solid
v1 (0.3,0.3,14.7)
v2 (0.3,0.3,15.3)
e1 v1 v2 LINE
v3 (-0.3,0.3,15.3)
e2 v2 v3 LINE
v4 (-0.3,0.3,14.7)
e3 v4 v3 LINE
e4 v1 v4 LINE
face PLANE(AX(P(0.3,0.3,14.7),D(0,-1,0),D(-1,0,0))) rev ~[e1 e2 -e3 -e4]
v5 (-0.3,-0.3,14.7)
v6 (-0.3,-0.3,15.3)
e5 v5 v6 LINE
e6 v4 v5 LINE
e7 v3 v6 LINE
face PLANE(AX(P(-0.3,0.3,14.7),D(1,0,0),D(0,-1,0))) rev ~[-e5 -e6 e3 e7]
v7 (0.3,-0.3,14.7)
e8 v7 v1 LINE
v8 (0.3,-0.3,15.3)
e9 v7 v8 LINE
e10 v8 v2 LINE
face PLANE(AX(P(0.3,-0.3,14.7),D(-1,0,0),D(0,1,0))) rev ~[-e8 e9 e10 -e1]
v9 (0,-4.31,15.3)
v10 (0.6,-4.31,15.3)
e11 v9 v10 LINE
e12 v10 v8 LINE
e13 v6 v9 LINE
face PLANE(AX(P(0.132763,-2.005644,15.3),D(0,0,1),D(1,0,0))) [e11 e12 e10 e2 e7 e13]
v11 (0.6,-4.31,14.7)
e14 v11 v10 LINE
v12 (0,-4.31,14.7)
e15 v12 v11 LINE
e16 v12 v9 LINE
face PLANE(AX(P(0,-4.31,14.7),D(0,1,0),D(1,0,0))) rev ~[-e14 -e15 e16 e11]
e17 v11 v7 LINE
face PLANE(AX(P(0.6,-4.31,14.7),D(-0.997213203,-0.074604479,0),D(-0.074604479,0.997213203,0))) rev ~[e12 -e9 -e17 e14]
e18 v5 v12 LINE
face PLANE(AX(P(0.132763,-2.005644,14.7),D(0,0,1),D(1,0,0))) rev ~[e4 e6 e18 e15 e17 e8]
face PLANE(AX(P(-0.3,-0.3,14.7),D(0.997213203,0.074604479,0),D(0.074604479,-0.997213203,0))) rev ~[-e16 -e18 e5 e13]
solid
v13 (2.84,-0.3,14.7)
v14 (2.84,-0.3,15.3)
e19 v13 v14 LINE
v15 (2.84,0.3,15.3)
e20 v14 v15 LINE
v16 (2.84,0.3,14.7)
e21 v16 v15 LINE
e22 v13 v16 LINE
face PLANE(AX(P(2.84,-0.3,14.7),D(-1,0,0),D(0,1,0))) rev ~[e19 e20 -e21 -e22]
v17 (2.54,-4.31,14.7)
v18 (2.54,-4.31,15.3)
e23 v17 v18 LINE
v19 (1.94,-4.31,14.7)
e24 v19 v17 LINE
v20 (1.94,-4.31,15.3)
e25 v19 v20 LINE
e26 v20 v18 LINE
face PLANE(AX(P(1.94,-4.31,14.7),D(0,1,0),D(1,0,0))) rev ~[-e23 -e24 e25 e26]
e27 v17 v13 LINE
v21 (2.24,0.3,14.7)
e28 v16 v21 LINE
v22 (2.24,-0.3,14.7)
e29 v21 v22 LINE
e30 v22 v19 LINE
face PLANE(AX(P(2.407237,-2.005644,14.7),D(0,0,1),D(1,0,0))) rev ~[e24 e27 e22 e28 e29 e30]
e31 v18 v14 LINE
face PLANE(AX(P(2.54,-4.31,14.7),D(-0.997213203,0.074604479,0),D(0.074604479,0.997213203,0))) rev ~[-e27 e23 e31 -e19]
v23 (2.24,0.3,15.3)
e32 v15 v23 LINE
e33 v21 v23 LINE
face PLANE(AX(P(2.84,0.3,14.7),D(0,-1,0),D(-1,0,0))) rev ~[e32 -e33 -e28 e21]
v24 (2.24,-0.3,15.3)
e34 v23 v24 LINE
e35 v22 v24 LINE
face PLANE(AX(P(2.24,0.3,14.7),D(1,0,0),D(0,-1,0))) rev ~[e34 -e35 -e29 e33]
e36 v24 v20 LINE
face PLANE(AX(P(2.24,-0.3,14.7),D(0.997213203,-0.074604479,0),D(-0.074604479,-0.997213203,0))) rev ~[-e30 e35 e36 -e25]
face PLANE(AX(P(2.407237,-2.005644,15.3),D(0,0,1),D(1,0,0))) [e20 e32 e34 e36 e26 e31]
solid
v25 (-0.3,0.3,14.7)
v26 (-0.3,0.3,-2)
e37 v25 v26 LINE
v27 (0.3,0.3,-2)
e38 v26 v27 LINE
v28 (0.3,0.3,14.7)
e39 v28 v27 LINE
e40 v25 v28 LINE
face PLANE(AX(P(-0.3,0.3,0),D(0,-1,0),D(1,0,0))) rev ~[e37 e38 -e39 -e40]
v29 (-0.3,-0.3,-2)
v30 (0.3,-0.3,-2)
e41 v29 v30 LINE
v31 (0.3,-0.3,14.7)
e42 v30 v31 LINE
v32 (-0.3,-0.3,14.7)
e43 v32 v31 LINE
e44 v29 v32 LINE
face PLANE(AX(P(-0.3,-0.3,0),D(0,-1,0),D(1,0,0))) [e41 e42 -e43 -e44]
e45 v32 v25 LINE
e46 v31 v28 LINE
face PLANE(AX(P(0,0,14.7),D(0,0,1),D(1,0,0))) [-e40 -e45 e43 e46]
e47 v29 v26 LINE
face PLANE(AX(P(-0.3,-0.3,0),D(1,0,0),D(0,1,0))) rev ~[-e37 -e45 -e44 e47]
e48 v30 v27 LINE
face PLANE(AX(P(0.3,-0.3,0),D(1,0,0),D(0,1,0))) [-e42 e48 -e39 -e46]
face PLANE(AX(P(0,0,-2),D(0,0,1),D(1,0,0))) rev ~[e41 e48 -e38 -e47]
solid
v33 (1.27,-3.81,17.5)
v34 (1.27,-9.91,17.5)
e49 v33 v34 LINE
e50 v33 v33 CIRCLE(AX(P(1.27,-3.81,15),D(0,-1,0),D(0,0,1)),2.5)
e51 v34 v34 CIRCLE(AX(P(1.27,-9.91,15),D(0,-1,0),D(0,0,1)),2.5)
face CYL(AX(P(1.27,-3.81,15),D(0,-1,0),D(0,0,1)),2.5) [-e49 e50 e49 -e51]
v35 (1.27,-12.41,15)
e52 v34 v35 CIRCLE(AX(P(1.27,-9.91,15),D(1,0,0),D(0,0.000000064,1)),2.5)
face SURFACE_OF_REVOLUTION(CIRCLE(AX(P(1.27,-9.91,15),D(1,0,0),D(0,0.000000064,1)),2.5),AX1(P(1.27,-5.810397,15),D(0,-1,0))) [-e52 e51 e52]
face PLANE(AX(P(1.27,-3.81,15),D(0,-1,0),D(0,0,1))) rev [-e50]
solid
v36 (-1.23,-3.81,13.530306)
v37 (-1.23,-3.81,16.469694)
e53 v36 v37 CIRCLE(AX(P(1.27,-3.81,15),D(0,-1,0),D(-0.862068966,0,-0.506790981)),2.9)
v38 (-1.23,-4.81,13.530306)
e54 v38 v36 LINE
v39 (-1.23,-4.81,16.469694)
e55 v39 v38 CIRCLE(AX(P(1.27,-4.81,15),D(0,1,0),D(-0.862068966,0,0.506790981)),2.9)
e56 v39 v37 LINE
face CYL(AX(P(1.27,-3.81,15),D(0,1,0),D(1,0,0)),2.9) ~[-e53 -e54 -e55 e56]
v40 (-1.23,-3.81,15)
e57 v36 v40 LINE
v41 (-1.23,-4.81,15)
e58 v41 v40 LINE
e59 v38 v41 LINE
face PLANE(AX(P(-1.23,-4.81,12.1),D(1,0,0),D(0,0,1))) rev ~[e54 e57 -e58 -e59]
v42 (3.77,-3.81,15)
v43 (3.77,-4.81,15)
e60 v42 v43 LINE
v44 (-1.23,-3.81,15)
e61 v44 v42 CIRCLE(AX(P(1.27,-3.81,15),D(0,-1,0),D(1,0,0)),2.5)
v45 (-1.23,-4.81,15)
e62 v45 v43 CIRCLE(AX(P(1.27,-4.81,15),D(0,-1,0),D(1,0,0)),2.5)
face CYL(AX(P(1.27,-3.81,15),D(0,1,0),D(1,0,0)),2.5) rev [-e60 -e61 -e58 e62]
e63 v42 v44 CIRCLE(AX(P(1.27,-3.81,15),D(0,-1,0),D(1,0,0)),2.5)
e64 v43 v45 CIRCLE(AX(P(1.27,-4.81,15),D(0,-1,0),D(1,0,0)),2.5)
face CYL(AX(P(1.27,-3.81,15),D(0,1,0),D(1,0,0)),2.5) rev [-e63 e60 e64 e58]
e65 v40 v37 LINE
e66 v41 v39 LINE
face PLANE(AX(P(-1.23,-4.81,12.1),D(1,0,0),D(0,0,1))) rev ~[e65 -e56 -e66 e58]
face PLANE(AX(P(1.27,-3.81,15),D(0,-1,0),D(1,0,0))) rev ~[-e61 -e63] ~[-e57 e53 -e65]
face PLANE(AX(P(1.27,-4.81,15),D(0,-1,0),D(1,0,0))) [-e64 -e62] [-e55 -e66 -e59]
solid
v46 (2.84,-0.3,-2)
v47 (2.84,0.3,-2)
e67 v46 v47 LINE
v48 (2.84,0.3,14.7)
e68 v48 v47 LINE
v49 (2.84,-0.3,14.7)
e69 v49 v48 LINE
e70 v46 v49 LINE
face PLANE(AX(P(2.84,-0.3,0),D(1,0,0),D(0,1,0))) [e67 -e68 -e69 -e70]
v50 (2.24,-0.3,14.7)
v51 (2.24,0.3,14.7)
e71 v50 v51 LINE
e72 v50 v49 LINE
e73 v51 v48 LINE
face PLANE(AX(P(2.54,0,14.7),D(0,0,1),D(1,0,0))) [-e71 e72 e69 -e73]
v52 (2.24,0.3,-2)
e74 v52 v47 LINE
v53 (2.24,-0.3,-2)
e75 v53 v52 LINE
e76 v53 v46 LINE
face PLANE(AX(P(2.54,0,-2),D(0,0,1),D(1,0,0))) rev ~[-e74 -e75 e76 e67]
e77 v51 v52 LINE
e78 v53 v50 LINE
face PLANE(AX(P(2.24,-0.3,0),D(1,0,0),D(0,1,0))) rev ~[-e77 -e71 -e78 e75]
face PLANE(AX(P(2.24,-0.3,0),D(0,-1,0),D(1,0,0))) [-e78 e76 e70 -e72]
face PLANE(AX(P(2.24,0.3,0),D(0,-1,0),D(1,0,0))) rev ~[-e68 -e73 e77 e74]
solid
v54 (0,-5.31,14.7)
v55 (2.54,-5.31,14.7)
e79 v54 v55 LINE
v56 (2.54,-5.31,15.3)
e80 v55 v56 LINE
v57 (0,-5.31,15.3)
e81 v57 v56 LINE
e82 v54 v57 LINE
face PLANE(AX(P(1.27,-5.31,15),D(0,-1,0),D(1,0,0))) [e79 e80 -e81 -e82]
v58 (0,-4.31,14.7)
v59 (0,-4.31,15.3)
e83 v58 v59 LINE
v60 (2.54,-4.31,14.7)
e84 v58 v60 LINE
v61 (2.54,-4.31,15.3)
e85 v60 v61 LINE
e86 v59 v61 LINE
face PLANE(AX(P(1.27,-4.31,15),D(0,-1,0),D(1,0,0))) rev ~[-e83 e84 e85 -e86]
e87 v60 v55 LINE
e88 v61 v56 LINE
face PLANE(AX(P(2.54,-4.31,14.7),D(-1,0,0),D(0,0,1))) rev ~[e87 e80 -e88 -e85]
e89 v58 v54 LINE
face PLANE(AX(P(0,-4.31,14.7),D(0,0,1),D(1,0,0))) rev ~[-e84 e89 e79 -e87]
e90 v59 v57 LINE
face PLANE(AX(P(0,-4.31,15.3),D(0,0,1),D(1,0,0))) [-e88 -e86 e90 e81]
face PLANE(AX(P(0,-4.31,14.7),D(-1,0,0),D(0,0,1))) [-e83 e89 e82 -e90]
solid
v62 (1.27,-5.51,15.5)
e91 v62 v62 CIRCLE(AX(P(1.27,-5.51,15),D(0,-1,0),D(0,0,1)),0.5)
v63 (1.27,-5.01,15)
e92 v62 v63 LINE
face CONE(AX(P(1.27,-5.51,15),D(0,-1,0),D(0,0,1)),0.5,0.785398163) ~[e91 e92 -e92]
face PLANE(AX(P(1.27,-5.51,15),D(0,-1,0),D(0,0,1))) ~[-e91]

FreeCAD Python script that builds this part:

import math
import FreeCAD as App
import Part
import Sketcher

V = App.Vector


def add_polygon(sketch, points):
    """Adds a closed chain of lines whose ends are joined by coincident constraints."""
    first, n = sketch.GeometryCount, len(points)
    for a, b in zip(points, points[1:] + points[:1]):
        sketch.addGeometry(Part.LineSegment(App.Vector(*a, 0), App.Vector(*b, 0)), False)
    for i in range(n):
        sketch.addConstraint(Sketcher.Constraint("Coincident", first + i, 2, first + (i + 1) % n, 1))

doc = App.newDocument("Part")
params = doc.addObject("Spreadsheet::Sheet", "Params")
for row, (alias, value) in enumerate([
    ("sketch1_width", "0.6 mm"),
    ("pad1_length", "14.7 mm"),
    ("pad1_length2", "2 mm"),
    ("sketch2_width", "0.6 mm"),
    ("pad2_length", "0.6 mm"),
    ("sketch3_height", "0.6 mm"),
    ("sketch3_width", "2.54 mm"),
    ("pad3_length", "1 mm"),
    ("sketch4_radius", "2.5 mm"),
    ("sketch4_width", "8.6 mm"),
    ("revolution_angle", "360 deg"),
    ("sketch5_width", "0.5 mm"),
    ("revolution2_angle", "360 deg"),
    ("sketch6_diameter", "5 mm"),
    ("sketch6_diameter2", "5.8 mm"),
    ("pad4_length", "1 mm"),
    ("sketch7_width", "0.4 mm"),
    ("sketch7_height", "5.8 mm"),
], start=1):
    params.set(f"A{row}", alias)
    params.set(f"B{row}", "=" + value)
    params.setAlias(f"B{row}", alias)

body = doc.addObject("PartDesign::Body", "Body")
body.AllowCompound = True

# Sketch on XY plane
sketch1 = body.newObject("Sketcher::SketchObject", "Sketch")
sketch1.AttachmentSupport = (doc.getObject("XY_Plane"), [""])
sketch1.MapMode = "FlatFace"
add_polygon(sketch1, [(-0.3, 0.3), (-0.3, -0.3), (0.3, -0.3), (0.3, 0.3)])  # lines 0-3
add_polygon(sketch1, [(2.24, 0.3), (2.24, -0.3), (2.84, -0.3), (2.84, 0.3)])  # lines 4-7
sketch1.addConstraint(Sketcher.Constraint("Vertical", 0))
sketch1.addConstraint(Sketcher.Constraint("Horizontal", 1))
sketch1.addConstraint(Sketcher.Constraint("Vertical", 2))
sketch1.addConstraint(Sketcher.Constraint("Horizontal", 3))
sketch1.addConstraint(Sketcher.Constraint("Vertical", 4))
sketch1.addConstraint(Sketcher.Constraint("Horizontal", 5))
sketch1.addConstraint(Sketcher.Constraint("Vertical", 6))
sketch1.addConstraint(Sketcher.Constraint("Horizontal", 7))
sketch1.addConstraint(Sketcher.Constraint("Symmetric", 0, 2, 2, 2, -1, 1))
sketch1.addConstraint(Sketcher.Constraint("Horizontal", 1, 2, 4, 2))
sketch1.addConstraint(Sketcher.Constraint("Horizontal", 3, 2, 6, 2))
sketch1.addConstraint(Sketcher.Constraint("Equal", 3, 5))
sketch1.addConstraint(Sketcher.Constraint("Equal", 7, 0))
sketch1.addConstraint(Sketcher.Constraint("DistanceX", 1, 1, 1, 2, 0.6))
sketch1.addConstraint(Sketcher.Constraint("DistanceX", -1, 1, 4, 2, 2.24))
sketch1.setExpression("Constraints[21]", "Params.sketch1_width")
pad1 = body.newObject("PartDesign::Pad", "Pad")
pad1.Profile = sketch1
pad1.Type = "TwoLengths"
pad1.setExpression("Length", "Params.pad1_length")
pad1.setExpression("Length2", "Params.pad1_length2")
body2 = doc.addObject("PartDesign::Body", "Body001")
body2.AllowCompound = True

# Sketch on XY plane
sketch2 = body2.newObject("Sketcher::SketchObject", "Sketch001")
sketch2.AttachmentSupport = (doc.getObject("XY_Plane001"), [""])
sketch2.MapMode = "FlatFace"
sketch2.AttachmentOffset = App.Placement(V(0, 0, 14.7), App.Rotation())
add_polygon(sketch2, [(0.3, 0.3), (-0.3, 0.3), (-0.3, -0.3), (0, -4.31), (0.6, -4.31), (0.3, -0.3)])  # lines 0-5
add_polygon(sketch2, [(2.84, 0.3), (2.24, 0.3), (2.24, -0.3), (1.94, -4.31), (2.54, -4.31), (2.84, -0.3)])  # lines 6-11
sketch2.addConstraint(Sketcher.Constraint("Horizontal", 0))
sketch2.addConstraint(Sketcher.Constraint("Vertical", 1))
sketch2.addConstraint(Sketcher.Constraint("Horizontal", 3))
sketch2.addConstraint(Sketcher.Constraint("Vertical", 5))
sketch2.addConstraint(Sketcher.Constraint("Horizontal", 6))
sketch2.addConstraint(Sketcher.Constraint("Vertical", 7))
sketch2.addConstraint(Sketcher.Constraint("Horizontal", 9))
sketch2.addConstraint(Sketcher.Constraint("Vertical", 11))
sketch2.addConstraint(Sketcher.Constraint("Symmetric", 0, 2, 4, 2, -1, 1))
sketch2.addConstraint(Sketcher.Constraint("PointOnObject", 2, 2, -2))
sketch2.addConstraint(Sketcher.Constraint("Parallel", 2, 4))
sketch2.addConstraint(Sketcher.Constraint("Parallel", 8, 10))
sketch2.addConstraint(Sketcher.Constraint("Horizontal", 1, 2, 4, 2))
sketch2.addConstraint(Sketcher.Constraint("Horizontal", 5, 2, 6, 2))
sketch2.addConstraint(Sketcher.Constraint("Horizontal", 4, 2, 7, 2))
sketch2.addConstraint(Sketcher.Constraint("Horizontal", 3, 2, 8, 2))
sketch2.addConstraint(Sketcher.Constraint("Horizontal", 7, 2, 10, 2))
sketch2.addConstraint(Sketcher.Constraint("Equal", 3, 6))
sketch2.addConstraint(Sketcher.Constraint("Equal", 9, 1))
sketch2.addConstraint(Sketcher.Constraint("Equal", 4, 8))
sketch2.addConstraint(Sketcher.Constraint("DistanceX", 0, 2, 0, 1, 0.6))
sketch2.addConstraint(Sketcher.Constraint("DistanceY", 2, 2, -1, 1, 4.31))
sketch2.addConstraint(Sketcher.Constraint("DistanceX", -1, 1, 6, 2, 2.24))
sketch2.setExpression("Constraints[32]", "Params.sketch2_width")
pad2 = body2.newObject("PartDesign::Pad", "Pad001")
pad2.Profile = sketch2
pad2.setExpression("Length", "Params.pad2_length")
body3 = doc.addObject("PartDesign::Body", "Body002")

# Sketch on XZ plane
sketch3 = body3.newObject("Sketcher::SketchObject", "Sketch002")
sketch3.AttachmentSupport = (doc.getObject("XZ_Plane002"), [""])
sketch3.MapMode = "FlatFace"
sketch3.AttachmentOffset = App.Placement(V(0, 0, 4.31), App.Rotation())
add_polygon(sketch3, [(0, 15.3), (0, 14.7), (2.54, 14.7), (2.54, 15.3)])  # lines 0-3
sketch3.addConstraint(Sketcher.Constraint("Vertical", 0))
sketch3.addConstraint(Sketcher.Constraint("Horizontal", 1))
sketch3.addConstraint(Sketcher.Constraint("Vertical", 2))
sketch3.addConstraint(Sketcher.Constraint("Horizontal", 3))
sketch3.addConstraint(Sketcher.Constraint("PointOnObject", 0, 2, -2))
sketch3.addConstraint(Sketcher.Constraint("DistanceY", 0, 2, 0, 1, 0.6))
sketch3.addConstraint(Sketcher.Constraint("DistanceX", 1, 1, 1, 2, 2.54))
sketch3.addConstraint(Sketcher.Constraint("DistanceY", -1, 1, 0, 2, 14.7))
sketch3.setExpression("Constraints[9]", "Params.sketch3_height")
sketch3.setExpression("Constraints[10]", "Params.sketch3_width")
pad3 = body3.newObject("PartDesign::Pad", "Pad002")
pad3.Profile = sketch3
pad3.setExpression("Length", "Params.pad3_length")
body4 = doc.addObject("PartDesign::Body", "Body003")

# Sketch on YZ plane
sketch4 = body4.newObject("Sketcher::SketchObject", "Sketch003")
sketch4.AttachmentSupport = (doc.getObject("YZ_Plane003"), [""])
sketch4.MapMode = "FlatFace"
sketch4.AttachmentOffset = App.Placement(V(0, 0, 1.27), App.Rotation())
sketch4.addGeometry(Part.LineSegment(V(-12.41, 15, 0), V(-3.81, 15, 0)), False)
sketch4.addGeometry(Part.LineSegment(V(-3.81, 15, 0), V(-3.81, 17.5, 0)), False)
sketch4.addGeometry(Part.LineSegment(V(-3.81, 17.5, 0), V(-9.91, 17.5, 0)), False)
sketch4.addGeometry(Part.ArcOfCircle(Part.Circle(V(-9.91, 15, 0), V(0, 0, 1), 2.5), math.radians(89.999996), math.radians(180.000004)), False)
sketch4.addGeometry(Part.LineSegment(V(-3.81, 15, 0), V(-12.41, 15, 0)), True)  # axis
sketch4.addConstraint(Sketcher.Constraint("Coincident", 0, 2, 1, 1))
sketch4.addConstraint(Sketcher.Constraint("Coincident", 1, 2, 2, 1))
sketch4.addConstraint(Sketcher.Constraint("Tangent", 2, 2, 3, 1))
sketch4.addConstraint(Sketcher.Constraint("Coincident", 3, 2, 0, 1))
sketch4.addConstraint(Sketcher.Constraint("Horizontal", 0))
sketch4.addConstraint(Sketcher.Constraint("Vertical", 1))
sketch4.addConstraint(Sketcher.Constraint("Horizontal", 2))
sketch4.addConstraint(Sketcher.Constraint("Horizontal", 4))
sketch4.addConstraint(Sketcher.Constraint("Coincident", 4, 1, 0, 2))
sketch4.addConstraint(Sketcher.Constraint("Horizontal", 3, 3, 0, 2))
sketch4.addConstraint(Sketcher.Constraint("Equal", 0, 4))
sketch4.addConstraint(Sketcher.Constraint("Radius", 3, 2.5))
sketch4.addConstraint(Sketcher.Constraint("DistanceX", 0, 1, 0, 2, 8.6))
sketch4.addConstraint(Sketcher.Constraint("DistanceY", -1, 1, 3, 3, 15.0))
sketch4.addConstraint(Sketcher.Constraint("DistanceX", 3, 3, -1, 1, 9.91))
sketch4.setExpression("Constraints[11]", "Params.sketch4_radius")
sketch4.setExpression("Constraints[12]", "Params.sketch4_width")
revolution = body4.newObject("PartDesign::Revolution", "Revolution")
revolution.Profile = sketch4
revolution.ReferenceAxis = (sketch4, ["Axis0"])
revolution.setExpression("Angle", "Params.revolution_angle")
body5 = doc.addObject("PartDesign::Body", "Body004")

# Sketch on YZ plane
sketch5 = body5.newObject("Sketcher::SketchObject", "Sketch004")
sketch5.AttachmentSupport = (doc.getObject("YZ_Plane004"), [""])
sketch5.MapMode = "FlatFace"
sketch5.AttachmentOffset = App.Placement(V(0, 0, 1.27), App.Rotation())
add_polygon(sketch5, [(-5.51, 15), (-5.01, 15), (-5.51, 15.5)])  # lines 0-2
sketch5.addGeometry(Part.LineSegment(V(-5.01, 15, 0), V(-5.51, 15, 0)), True)  # axis
sketch5.addConstraint(Sketcher.Constraint("Horizontal", 0))
sketch5.addConstraint(Sketcher.Constraint("Vertical", 2))
sketch5.addConstraint(Sketcher.Constraint("Horizontal", 3))
sketch5.addConstraint(Sketcher.Constraint("Coincident", 3, 1, 0, 2))
sketch5.addConstraint(Sketcher.Constraint("Vertical", 1, 2, 3, 2))
sketch5.addConstraint(Sketcher.Constraint("Equal", 3, 2))
sketch5.addConstraint(Sketcher.Constraint("DistanceX", 0, 1, 0, 2, 0.5))
sketch5.addConstraint(Sketcher.Constraint("DistanceY", -1, 1, 0, 2, 15.0))
sketch5.addConstraint(Sketcher.Constraint("DistanceX", 0, 2, -1, 1, 5.01))
sketch5.setExpression("Constraints[9]", "Params.sketch5_width")
revolution2 = body5.newObject("PartDesign::Revolution", "Revolution001")
revolution2.Profile = sketch5
revolution2.ReferenceAxis = (sketch5, ["Axis0"])
revolution2.setExpression("Angle", "Params.revolution2_angle")
body6 = doc.addObject("PartDesign::Body", "Body005")

# Sketch on XZ plane
sketch6 = body6.newObject("Sketcher::SketchObject", "Sketch005")
sketch6.AttachmentSupport = (doc.getObject("XZ_Plane005"), [""])
sketch6.MapMode = "FlatFace"
sketch6.AttachmentOffset = App.Placement(V(0, 0, 3.81), App.Rotation())
sketch6.addGeometry(Part.Circle(V(1.27, 15, 0), V(0, 0, 1), 2.9), False)
sketch6.addGeometry(Part.Circle(V(1.27, 15, 0), V(0, 0, 1), 2.5), False)
sketch6.addConstraint(Sketcher.Constraint("Coincident", 1, 3, 0, 3))
sketch6.addConstraint(Sketcher.Constraint("Diameter", 1, 5.0))
sketch6.addConstraint(Sketcher.Constraint("Diameter", 0, 5.8))
sketch6.addConstraint(Sketcher.Constraint("DistanceY", -1, 1, 0, 3, 15.0))
sketch6.addConstraint(Sketcher.Constraint("DistanceX", -1, 1, 0, 3, 1.27))
sketch6.setExpression("Constraints[1]", "Params.sketch6_diameter")
sketch6.setExpression("Constraints[2]", "Params.sketch6_diameter2")
pad4 = body6.newObject("PartDesign::Pad", "Pad003")
pad4.Profile = sketch6
pad4.setExpression("Length", "Params.pad4_length")

# Sketch on XZ plane
sketch7 = body6.newObject("Sketcher::SketchObject", "Sketch006")
sketch7.AttachmentSupport = (doc.getObject("XZ_Plane005"), [""])
sketch7.MapMode = "FlatFace"
sketch7.AttachmentOffset = App.Placement(V(0, 0, 4.81), App.Rotation())
add_polygon(sketch7, [(-1.63, 17.9), (-1.63, 12.1), (-1.23, 12.1), (-1.23, 17.9)])  # lines 0-3
sketch7.addConstraint(Sketcher.Constraint("Vertical", 0))
sketch7.addConstraint(Sketcher.Constraint("Horizontal", 1))
sketch7.addConstraint(Sketcher.Constraint("Vertical", 2))
sketch7.addConstraint(Sketcher.Constraint("Horizontal", 3))
sketch7.addConstraint(Sketcher.Constraint("DistanceX", 1, 1, 1, 2, 0.4))
sketch7.addConstraint(Sketcher.Constraint("DistanceY", 0, 2, 0, 1, 5.8))
sketch7.addConstraint(Sketcher.Constraint("DistanceY", -1, 1, 0, 2, 12.1))
sketch7.addConstraint(Sketcher.Constraint("DistanceX", 0, 2, -1, 1, 1.63))
sketch7.setExpression("Constraints[8]", "Params.sketch7_width")
sketch7.setExpression("Constraints[9]", "Params.sketch7_height")
pocket1 = body6.newObject("PartDesign::Pocket", "Pocket")
pocket1.Profile = sketch7
pocket1.Type = "ThroughAll"

doc.recompute()
